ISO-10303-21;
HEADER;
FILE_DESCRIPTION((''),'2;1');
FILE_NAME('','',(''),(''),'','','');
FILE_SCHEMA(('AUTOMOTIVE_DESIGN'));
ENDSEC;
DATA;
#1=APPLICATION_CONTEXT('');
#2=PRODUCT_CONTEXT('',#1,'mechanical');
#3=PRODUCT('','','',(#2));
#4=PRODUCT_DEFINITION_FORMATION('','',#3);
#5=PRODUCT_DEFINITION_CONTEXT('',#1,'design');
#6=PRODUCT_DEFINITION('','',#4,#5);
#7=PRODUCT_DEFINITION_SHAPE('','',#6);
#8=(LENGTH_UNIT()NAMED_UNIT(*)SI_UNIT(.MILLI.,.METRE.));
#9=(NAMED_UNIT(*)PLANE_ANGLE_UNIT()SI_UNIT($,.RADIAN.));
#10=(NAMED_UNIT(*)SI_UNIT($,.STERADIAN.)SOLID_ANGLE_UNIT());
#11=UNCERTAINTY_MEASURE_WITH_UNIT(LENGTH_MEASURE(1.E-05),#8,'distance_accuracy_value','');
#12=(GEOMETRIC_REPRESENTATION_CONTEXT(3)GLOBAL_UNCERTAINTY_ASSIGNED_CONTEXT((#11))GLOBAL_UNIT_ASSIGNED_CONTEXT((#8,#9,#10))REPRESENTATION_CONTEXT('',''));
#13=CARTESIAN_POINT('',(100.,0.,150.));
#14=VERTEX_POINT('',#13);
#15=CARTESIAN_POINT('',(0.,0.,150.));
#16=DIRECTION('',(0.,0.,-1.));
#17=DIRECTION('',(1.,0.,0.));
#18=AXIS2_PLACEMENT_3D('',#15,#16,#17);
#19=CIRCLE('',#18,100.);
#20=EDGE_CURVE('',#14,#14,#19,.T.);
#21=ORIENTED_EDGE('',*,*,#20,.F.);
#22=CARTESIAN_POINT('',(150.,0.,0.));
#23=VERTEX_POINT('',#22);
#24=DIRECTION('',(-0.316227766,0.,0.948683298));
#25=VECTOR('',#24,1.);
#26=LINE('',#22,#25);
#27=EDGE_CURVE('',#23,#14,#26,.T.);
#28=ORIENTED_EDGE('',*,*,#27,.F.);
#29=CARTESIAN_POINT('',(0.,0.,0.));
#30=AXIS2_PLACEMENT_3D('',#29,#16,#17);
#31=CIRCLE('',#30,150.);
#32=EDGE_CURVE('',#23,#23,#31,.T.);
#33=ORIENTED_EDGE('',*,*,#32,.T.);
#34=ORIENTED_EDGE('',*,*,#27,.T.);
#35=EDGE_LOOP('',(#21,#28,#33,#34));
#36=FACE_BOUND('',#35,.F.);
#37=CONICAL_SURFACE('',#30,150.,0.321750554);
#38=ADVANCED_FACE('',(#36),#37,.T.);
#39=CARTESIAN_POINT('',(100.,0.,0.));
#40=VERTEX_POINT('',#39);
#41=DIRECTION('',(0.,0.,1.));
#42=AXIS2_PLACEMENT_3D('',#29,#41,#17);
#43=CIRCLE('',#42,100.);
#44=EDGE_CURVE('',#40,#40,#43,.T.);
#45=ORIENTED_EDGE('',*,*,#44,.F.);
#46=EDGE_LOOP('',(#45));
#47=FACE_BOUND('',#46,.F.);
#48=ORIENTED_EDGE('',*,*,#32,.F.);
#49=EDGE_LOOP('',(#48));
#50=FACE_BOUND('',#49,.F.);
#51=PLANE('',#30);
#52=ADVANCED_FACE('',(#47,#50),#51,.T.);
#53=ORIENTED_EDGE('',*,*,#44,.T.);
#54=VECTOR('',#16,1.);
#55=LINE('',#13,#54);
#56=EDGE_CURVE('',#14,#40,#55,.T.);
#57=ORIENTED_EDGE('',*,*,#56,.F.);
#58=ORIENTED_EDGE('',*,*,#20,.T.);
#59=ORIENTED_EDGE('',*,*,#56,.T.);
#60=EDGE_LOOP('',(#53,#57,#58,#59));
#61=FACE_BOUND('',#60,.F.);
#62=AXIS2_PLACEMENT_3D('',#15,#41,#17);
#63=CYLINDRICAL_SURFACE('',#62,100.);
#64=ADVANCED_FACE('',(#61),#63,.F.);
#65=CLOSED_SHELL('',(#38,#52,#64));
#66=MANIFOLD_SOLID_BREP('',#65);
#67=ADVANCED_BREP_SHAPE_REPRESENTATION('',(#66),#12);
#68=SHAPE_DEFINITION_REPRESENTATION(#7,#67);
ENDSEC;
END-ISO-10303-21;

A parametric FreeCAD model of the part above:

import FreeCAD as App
import Part
import Sketcher
from FreeCAD import Vector
Q = App.Units.Quantity

doc = App.newDocument("Part")
body = doc.addObject("PartDesign::Body", "Body")

# Sketch on XZ plane
sketch1 = body.newObject("Sketcher::SketchObject", "Sketch")
sketch1.AttachmentSupport = (doc.getObject("XZ_Plane"), [""])
sketch1.MapMode = "FlatFace"
sketch1.addGeometry([
    Part.LineSegment(Vector(100, 150, 0), Vector(0, 150, 0)),
    Part.LineSegment(Vector(0, 150, 0), Vector(0, 0, 0)),
    Part.LineSegment(Vector(0, 0, 0), Vector(150, 0, 0)),
    Part.LineSegment(Vector(150, 0, 0), Vector(100, 150, 0)),
], False)
sketch1.addConstraint([
    Sketcher.Constraint("Coincident", 0, 2, 1, 1),
    Sketcher.Constraint("Coincident", 1, 2, 2, 1),
    Sketcher.Constraint("Coincident", 2, 2, 3, 1),
    Sketcher.Constraint("Coincident", 3, 2, 0, 1),
    Sketcher.Constraint("Horizontal", 0),
    Sketcher.Constraint("Vertical", 1),
    Sketcher.Constraint("Horizontal", 2),
    Sketcher.Constraint("Coincident", 1, 2, -1, 1),
    Sketcher.Constraint("Equal", 2, 1),
    Sketcher.Constraint("DistanceX", 0, 2, 0, 1, Q("100 mm")),
    Sketcher.Constraint("DistanceX", 2, 1, 2, 2, Q("150 mm")),
])
revolution = body.newObject("PartDesign::Revolution", "Revolution")
revolution.Profile = sketch1
revolution.ReferenceAxis = (sketch1, ["V_Axis"])
revolution.Angle = 360

# Sketch on XY plane
sketch2 = body.newObject("Sketcher::SketchObject", "Sketch001")
sketch2.AttachmentSupport = (doc.getObject("XY_Plane"), [""])
sketch2.MapMode = "FlatFace"
sketch2.AttachmentOffset = App.Placement(Vector(0, 0, 150), App.Rotation())
sketch2.addGeometry(Part.Circle(Vector(0, 0, 0), Vector(0, 0, 1), 100), False)
sketch2.addConstraint([
    Sketcher.Constraint("Coincident", 0, 3, -1, 1),
    Sketcher.Constraint("Diameter", 0, Q("200 mm")),
])
pocket1 = body.newObject("PartDesign::Pocket", "Pocket")
pocket1.Profile = sketch2
pocket1.Length = 225

doc.recompute()
